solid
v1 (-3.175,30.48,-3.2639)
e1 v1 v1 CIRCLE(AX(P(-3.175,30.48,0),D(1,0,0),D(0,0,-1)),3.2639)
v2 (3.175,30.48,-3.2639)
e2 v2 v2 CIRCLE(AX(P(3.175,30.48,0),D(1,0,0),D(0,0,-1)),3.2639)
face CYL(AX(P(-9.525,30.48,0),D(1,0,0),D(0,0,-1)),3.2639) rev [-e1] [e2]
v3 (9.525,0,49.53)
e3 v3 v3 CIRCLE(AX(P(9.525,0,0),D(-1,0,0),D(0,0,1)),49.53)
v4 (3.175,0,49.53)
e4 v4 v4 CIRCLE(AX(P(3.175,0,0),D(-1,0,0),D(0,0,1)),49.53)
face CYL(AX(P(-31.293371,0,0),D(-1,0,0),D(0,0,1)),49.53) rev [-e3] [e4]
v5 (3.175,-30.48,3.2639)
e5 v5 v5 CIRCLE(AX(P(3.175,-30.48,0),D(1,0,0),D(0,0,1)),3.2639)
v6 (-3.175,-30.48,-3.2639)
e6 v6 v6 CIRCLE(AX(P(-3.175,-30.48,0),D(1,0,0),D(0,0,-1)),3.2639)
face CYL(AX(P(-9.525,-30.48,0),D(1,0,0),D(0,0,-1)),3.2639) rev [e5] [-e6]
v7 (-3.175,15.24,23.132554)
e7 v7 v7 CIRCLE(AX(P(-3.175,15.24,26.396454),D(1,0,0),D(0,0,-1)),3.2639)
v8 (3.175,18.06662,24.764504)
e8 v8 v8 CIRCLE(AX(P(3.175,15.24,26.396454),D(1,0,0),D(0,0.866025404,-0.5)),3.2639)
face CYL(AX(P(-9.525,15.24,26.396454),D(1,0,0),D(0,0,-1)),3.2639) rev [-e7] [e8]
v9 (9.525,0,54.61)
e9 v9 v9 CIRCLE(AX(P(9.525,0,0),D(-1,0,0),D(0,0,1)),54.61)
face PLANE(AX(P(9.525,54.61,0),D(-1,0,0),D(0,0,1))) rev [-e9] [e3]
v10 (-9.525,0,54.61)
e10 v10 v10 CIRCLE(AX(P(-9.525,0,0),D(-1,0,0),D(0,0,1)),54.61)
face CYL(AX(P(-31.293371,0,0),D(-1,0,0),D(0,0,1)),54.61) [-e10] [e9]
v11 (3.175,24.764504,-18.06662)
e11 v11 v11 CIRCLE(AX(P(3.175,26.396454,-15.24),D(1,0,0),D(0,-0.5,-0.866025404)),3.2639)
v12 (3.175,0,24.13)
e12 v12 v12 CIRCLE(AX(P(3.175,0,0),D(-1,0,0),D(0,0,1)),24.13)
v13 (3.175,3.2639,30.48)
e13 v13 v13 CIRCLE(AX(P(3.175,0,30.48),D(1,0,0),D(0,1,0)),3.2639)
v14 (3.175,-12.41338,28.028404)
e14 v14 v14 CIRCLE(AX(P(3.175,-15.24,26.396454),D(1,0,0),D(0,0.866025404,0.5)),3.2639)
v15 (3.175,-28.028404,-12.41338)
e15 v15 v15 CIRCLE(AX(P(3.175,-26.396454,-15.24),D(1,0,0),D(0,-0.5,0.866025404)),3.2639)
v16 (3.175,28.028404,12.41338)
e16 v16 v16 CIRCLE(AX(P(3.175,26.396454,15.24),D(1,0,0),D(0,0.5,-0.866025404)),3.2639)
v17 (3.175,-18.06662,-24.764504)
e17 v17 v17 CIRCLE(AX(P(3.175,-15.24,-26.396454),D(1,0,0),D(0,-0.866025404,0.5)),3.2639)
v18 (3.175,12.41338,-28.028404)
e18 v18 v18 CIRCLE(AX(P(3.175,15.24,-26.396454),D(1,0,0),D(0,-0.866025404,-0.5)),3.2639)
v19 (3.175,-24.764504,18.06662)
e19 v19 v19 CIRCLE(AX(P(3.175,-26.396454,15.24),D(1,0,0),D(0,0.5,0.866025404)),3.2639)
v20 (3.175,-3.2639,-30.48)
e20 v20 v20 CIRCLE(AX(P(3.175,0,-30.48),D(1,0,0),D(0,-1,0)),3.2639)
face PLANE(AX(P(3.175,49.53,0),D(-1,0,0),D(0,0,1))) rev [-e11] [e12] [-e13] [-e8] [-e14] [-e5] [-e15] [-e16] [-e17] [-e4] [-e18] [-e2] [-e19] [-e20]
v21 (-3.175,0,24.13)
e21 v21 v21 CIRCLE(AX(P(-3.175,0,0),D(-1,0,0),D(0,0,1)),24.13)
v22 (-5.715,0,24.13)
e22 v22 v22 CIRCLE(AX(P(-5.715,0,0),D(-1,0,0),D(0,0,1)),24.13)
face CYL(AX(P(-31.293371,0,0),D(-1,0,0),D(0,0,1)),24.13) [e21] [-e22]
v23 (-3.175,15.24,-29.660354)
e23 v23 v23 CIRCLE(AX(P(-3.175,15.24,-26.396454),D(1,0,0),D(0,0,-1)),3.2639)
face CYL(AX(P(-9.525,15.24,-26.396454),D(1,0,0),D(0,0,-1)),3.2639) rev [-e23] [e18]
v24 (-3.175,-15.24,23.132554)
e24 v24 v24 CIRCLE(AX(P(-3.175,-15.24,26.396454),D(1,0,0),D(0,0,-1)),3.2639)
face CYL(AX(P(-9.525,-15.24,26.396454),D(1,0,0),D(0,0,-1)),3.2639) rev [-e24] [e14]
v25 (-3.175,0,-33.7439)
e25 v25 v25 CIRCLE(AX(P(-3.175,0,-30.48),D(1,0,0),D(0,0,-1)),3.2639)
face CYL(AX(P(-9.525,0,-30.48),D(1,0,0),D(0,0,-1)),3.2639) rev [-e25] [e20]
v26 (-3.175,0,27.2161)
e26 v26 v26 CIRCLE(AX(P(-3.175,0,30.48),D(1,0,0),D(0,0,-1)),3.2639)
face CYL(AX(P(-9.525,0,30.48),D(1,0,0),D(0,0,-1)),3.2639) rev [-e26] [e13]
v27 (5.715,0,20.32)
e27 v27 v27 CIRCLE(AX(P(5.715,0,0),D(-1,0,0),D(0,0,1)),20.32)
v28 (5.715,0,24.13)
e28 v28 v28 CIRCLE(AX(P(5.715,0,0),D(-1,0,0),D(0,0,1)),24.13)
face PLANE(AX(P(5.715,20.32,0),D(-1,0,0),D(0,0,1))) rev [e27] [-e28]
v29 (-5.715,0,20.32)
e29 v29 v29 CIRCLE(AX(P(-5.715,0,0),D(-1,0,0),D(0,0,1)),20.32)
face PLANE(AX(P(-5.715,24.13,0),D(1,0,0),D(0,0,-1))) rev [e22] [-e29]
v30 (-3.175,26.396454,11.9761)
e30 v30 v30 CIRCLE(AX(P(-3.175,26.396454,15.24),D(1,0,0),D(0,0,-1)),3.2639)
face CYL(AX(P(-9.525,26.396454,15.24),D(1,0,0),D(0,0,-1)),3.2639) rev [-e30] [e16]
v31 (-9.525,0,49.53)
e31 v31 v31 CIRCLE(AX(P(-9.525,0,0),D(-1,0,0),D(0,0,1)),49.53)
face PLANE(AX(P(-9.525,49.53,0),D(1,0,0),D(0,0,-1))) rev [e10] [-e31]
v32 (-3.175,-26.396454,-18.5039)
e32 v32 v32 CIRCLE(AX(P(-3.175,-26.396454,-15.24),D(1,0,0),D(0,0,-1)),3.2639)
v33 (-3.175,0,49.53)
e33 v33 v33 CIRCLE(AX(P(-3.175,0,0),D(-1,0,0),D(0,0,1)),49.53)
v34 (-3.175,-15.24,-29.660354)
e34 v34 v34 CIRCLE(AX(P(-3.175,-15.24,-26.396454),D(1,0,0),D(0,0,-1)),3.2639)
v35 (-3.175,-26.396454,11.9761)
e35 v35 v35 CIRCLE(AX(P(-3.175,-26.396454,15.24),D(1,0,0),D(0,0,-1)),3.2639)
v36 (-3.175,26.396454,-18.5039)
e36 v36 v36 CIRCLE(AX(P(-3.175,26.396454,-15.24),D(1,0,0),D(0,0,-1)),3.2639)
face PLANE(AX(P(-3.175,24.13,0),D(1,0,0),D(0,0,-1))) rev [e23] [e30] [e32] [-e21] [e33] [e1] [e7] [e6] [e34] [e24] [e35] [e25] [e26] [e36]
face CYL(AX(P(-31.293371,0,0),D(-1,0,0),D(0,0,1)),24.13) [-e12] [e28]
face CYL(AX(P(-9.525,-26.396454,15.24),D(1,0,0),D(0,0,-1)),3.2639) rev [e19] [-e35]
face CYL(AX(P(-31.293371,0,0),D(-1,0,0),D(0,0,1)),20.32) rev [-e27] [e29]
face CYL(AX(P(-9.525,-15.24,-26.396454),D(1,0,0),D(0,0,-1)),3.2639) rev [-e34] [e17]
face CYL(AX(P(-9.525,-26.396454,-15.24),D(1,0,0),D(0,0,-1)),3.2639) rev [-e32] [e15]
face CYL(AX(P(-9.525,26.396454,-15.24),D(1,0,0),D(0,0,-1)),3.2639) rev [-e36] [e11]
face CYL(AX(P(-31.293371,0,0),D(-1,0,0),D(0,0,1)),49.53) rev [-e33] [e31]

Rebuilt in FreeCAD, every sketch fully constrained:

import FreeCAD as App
import Part
import Sketcher

V = App.Vector
Q = App.Units.Quantity

doc = App.newDocument("Part")
body = doc.addObject("PartDesign::Body", "Body")

sketch1 = body.newObject("Sketcher::SketchObject", "Sketch")
sketch1.AttachmentSupport = (doc.getObject("XY_Plane"), [""])
sketch1.MapMode = "FlatFace"
sketch1.addGeometry([
    Part.LineSegment(V(9.5, 54.6, 0), V(-9.5, 54.6, 0)),
    Part.LineSegment(V(-9.5, 54.6, 0), V(-9.5, 49.5, 0)),
    Part.LineSegment(V(-9.5, 49.5, 0), V(-3.2, 49.5, 0)),
    Part.LineSegment(V(-3.2, 49.5, 0), V(-3.2, 24.1, 0)),
    Part.LineSegment(V(-3.2, 24.1, 0), V(-5.7, 24.1, 0)),
    Part.LineSegment(V(-5.7, 24.1, 0), V(-5.7, 20.3, 0)),
    Part.LineSegment(V(-5.7, 20.3, 0), V(5.7, 20.3, 0)),
    Part.LineSegment(V(5.7, 20.3, 0), V(5.7, 24.1, 0)),
    Part.LineSegment(V(5.7, 24.1, 0), V(3.2, 24.1, 0)),
    Part.LineSegment(V(3.2, 24.1, 0), V(3.2, 49.5, 0)),
    Part.LineSegment(V(3.2, 49.5, 0), V(9.5, 49.5, 0)),
    Part.LineSegment(V(9.5, 49.5, 0), V(9.5, 54.6, 0)),
], False)
sketch1.addConstraint([
    Sketcher.Constraint("Coincident", 0, 2, 1, 1),
    Sketcher.Constraint("Coincident", 1, 2, 2, 1),
    Sketcher.Constraint("Coincident", 2, 2, 3, 1),
    Sketcher.Constraint("Coincident", 3, 2, 4, 1),
    Sketcher.Constraint("Coincident", 4, 2, 5, 1),
    Sketcher.Constraint("Coincident", 5, 2, 6, 1),
    Sketcher.Constraint("Coincident", 6, 2, 7, 1),
    Sketcher.Constraint("Coincident", 7, 2, 8, 1),
    Sketcher.Constraint("Coincident", 8, 2, 9, 1),
    Sketcher.Constraint("Coincident", 9, 2, 10, 1),
    Sketcher.Constraint("Coincident", 10, 2, 11, 1),
    Sketcher.Constraint("Coincident", 11, 2, 0, 1),
    Sketcher.Constraint("Horizontal", 0),
    Sketcher.Constraint("Vertical", 1),
    Sketcher.Constraint("Horizontal", 2),
    Sketcher.Constraint("Vertical", 3),
    Sketcher.Constraint("Horizontal", 4),
    Sketcher.Constraint("Vertical", 5),
    Sketcher.Constraint("Horizontal", 6),
    Sketcher.Constraint("Vertical", 7),
    Sketcher.Constraint("Horizontal", 8),
    Sketcher.Constraint("Vertical", 9),
    Sketcher.Constraint("Horizontal", 10),
    Sketcher.Constraint("Vertical", 11),
    Sketcher.Constraint("Symmetric", 4, 2, 7, 2, -2),
    Sketcher.Constraint("Symmetric", 2, 2, 9, 2, -2),
    Sketcher.Constraint("Equal", 2, 10),
    Sketcher.Constraint("DistanceY", 3, 2, 3, 1, Q("1 in")),
    Sketcher.Constraint("DistanceX", 4, 2, 4, 1, Q("0.1 in")),
    Sketcher.Constraint("DistanceY", 1, 2, 1, 1, Q("0.2 in")),
    Sketcher.Constraint("DistanceX", 0, 2, 0, 1, Q("0.75 in")),
    Sketcher.Constraint("DistanceX", 2, 1, 2, 2, Q("0.25 in")),
    Sketcher.Constraint("DistanceY", 5, 2, 5, 1, Q("0.15 in")),
    Sketcher.Constraint("DistanceY", -1, 1, 5, 2, Q("0.8 in")),
])
revolution = body.newObject("PartDesign::Revolution", "Revolution")
revolution.Profile = sketch1
revolution.ReferenceAxis = (sketch1, ["H_Axis"])
revolution.Angle = 360

sketch2 = body.newObject("Sketcher::SketchObject", "Sketch001")
sketch2.AttachmentSupport = (doc.getObject("YZ_Plane"), [""])
sketch2.MapMode = "FlatFace"
sketch2.AttachmentOffset = App.Placement(V(0, 0, 0.125 * 25.4), App.Rotation())
sketch2.addGeometry(Part.Circle(V(30.5, 0, 0), V(0, 0, 1), 3.3), False)
sketch2.addConstraint([
    Sketcher.Constraint("PointOnObject", 0, 3, -1),
    Sketcher.Constraint("Diameter", 0, Q("0.257 in")),
    Sketcher.Constraint("DistanceX", -1, 1, 0, 3, Q("1.2 in")),
])
pocket1 = body.newObject("PartDesign::Pocket", "Pocket")
pocket1.Profile = sketch2
pocket1.Type = "ThroughAll"
doc.recompute()

polarpattern = body.newObject("PartDesign::PolarPattern", "PolarPattern")
polarpattern.Originals = [pocket1]
polarpattern.Axis = (doc.getObject("X_Axis"), [""])
polarpattern.Angle = 360
polarpattern.Occurrences = 12
body.Tip = polarpattern

doc.recompute()
